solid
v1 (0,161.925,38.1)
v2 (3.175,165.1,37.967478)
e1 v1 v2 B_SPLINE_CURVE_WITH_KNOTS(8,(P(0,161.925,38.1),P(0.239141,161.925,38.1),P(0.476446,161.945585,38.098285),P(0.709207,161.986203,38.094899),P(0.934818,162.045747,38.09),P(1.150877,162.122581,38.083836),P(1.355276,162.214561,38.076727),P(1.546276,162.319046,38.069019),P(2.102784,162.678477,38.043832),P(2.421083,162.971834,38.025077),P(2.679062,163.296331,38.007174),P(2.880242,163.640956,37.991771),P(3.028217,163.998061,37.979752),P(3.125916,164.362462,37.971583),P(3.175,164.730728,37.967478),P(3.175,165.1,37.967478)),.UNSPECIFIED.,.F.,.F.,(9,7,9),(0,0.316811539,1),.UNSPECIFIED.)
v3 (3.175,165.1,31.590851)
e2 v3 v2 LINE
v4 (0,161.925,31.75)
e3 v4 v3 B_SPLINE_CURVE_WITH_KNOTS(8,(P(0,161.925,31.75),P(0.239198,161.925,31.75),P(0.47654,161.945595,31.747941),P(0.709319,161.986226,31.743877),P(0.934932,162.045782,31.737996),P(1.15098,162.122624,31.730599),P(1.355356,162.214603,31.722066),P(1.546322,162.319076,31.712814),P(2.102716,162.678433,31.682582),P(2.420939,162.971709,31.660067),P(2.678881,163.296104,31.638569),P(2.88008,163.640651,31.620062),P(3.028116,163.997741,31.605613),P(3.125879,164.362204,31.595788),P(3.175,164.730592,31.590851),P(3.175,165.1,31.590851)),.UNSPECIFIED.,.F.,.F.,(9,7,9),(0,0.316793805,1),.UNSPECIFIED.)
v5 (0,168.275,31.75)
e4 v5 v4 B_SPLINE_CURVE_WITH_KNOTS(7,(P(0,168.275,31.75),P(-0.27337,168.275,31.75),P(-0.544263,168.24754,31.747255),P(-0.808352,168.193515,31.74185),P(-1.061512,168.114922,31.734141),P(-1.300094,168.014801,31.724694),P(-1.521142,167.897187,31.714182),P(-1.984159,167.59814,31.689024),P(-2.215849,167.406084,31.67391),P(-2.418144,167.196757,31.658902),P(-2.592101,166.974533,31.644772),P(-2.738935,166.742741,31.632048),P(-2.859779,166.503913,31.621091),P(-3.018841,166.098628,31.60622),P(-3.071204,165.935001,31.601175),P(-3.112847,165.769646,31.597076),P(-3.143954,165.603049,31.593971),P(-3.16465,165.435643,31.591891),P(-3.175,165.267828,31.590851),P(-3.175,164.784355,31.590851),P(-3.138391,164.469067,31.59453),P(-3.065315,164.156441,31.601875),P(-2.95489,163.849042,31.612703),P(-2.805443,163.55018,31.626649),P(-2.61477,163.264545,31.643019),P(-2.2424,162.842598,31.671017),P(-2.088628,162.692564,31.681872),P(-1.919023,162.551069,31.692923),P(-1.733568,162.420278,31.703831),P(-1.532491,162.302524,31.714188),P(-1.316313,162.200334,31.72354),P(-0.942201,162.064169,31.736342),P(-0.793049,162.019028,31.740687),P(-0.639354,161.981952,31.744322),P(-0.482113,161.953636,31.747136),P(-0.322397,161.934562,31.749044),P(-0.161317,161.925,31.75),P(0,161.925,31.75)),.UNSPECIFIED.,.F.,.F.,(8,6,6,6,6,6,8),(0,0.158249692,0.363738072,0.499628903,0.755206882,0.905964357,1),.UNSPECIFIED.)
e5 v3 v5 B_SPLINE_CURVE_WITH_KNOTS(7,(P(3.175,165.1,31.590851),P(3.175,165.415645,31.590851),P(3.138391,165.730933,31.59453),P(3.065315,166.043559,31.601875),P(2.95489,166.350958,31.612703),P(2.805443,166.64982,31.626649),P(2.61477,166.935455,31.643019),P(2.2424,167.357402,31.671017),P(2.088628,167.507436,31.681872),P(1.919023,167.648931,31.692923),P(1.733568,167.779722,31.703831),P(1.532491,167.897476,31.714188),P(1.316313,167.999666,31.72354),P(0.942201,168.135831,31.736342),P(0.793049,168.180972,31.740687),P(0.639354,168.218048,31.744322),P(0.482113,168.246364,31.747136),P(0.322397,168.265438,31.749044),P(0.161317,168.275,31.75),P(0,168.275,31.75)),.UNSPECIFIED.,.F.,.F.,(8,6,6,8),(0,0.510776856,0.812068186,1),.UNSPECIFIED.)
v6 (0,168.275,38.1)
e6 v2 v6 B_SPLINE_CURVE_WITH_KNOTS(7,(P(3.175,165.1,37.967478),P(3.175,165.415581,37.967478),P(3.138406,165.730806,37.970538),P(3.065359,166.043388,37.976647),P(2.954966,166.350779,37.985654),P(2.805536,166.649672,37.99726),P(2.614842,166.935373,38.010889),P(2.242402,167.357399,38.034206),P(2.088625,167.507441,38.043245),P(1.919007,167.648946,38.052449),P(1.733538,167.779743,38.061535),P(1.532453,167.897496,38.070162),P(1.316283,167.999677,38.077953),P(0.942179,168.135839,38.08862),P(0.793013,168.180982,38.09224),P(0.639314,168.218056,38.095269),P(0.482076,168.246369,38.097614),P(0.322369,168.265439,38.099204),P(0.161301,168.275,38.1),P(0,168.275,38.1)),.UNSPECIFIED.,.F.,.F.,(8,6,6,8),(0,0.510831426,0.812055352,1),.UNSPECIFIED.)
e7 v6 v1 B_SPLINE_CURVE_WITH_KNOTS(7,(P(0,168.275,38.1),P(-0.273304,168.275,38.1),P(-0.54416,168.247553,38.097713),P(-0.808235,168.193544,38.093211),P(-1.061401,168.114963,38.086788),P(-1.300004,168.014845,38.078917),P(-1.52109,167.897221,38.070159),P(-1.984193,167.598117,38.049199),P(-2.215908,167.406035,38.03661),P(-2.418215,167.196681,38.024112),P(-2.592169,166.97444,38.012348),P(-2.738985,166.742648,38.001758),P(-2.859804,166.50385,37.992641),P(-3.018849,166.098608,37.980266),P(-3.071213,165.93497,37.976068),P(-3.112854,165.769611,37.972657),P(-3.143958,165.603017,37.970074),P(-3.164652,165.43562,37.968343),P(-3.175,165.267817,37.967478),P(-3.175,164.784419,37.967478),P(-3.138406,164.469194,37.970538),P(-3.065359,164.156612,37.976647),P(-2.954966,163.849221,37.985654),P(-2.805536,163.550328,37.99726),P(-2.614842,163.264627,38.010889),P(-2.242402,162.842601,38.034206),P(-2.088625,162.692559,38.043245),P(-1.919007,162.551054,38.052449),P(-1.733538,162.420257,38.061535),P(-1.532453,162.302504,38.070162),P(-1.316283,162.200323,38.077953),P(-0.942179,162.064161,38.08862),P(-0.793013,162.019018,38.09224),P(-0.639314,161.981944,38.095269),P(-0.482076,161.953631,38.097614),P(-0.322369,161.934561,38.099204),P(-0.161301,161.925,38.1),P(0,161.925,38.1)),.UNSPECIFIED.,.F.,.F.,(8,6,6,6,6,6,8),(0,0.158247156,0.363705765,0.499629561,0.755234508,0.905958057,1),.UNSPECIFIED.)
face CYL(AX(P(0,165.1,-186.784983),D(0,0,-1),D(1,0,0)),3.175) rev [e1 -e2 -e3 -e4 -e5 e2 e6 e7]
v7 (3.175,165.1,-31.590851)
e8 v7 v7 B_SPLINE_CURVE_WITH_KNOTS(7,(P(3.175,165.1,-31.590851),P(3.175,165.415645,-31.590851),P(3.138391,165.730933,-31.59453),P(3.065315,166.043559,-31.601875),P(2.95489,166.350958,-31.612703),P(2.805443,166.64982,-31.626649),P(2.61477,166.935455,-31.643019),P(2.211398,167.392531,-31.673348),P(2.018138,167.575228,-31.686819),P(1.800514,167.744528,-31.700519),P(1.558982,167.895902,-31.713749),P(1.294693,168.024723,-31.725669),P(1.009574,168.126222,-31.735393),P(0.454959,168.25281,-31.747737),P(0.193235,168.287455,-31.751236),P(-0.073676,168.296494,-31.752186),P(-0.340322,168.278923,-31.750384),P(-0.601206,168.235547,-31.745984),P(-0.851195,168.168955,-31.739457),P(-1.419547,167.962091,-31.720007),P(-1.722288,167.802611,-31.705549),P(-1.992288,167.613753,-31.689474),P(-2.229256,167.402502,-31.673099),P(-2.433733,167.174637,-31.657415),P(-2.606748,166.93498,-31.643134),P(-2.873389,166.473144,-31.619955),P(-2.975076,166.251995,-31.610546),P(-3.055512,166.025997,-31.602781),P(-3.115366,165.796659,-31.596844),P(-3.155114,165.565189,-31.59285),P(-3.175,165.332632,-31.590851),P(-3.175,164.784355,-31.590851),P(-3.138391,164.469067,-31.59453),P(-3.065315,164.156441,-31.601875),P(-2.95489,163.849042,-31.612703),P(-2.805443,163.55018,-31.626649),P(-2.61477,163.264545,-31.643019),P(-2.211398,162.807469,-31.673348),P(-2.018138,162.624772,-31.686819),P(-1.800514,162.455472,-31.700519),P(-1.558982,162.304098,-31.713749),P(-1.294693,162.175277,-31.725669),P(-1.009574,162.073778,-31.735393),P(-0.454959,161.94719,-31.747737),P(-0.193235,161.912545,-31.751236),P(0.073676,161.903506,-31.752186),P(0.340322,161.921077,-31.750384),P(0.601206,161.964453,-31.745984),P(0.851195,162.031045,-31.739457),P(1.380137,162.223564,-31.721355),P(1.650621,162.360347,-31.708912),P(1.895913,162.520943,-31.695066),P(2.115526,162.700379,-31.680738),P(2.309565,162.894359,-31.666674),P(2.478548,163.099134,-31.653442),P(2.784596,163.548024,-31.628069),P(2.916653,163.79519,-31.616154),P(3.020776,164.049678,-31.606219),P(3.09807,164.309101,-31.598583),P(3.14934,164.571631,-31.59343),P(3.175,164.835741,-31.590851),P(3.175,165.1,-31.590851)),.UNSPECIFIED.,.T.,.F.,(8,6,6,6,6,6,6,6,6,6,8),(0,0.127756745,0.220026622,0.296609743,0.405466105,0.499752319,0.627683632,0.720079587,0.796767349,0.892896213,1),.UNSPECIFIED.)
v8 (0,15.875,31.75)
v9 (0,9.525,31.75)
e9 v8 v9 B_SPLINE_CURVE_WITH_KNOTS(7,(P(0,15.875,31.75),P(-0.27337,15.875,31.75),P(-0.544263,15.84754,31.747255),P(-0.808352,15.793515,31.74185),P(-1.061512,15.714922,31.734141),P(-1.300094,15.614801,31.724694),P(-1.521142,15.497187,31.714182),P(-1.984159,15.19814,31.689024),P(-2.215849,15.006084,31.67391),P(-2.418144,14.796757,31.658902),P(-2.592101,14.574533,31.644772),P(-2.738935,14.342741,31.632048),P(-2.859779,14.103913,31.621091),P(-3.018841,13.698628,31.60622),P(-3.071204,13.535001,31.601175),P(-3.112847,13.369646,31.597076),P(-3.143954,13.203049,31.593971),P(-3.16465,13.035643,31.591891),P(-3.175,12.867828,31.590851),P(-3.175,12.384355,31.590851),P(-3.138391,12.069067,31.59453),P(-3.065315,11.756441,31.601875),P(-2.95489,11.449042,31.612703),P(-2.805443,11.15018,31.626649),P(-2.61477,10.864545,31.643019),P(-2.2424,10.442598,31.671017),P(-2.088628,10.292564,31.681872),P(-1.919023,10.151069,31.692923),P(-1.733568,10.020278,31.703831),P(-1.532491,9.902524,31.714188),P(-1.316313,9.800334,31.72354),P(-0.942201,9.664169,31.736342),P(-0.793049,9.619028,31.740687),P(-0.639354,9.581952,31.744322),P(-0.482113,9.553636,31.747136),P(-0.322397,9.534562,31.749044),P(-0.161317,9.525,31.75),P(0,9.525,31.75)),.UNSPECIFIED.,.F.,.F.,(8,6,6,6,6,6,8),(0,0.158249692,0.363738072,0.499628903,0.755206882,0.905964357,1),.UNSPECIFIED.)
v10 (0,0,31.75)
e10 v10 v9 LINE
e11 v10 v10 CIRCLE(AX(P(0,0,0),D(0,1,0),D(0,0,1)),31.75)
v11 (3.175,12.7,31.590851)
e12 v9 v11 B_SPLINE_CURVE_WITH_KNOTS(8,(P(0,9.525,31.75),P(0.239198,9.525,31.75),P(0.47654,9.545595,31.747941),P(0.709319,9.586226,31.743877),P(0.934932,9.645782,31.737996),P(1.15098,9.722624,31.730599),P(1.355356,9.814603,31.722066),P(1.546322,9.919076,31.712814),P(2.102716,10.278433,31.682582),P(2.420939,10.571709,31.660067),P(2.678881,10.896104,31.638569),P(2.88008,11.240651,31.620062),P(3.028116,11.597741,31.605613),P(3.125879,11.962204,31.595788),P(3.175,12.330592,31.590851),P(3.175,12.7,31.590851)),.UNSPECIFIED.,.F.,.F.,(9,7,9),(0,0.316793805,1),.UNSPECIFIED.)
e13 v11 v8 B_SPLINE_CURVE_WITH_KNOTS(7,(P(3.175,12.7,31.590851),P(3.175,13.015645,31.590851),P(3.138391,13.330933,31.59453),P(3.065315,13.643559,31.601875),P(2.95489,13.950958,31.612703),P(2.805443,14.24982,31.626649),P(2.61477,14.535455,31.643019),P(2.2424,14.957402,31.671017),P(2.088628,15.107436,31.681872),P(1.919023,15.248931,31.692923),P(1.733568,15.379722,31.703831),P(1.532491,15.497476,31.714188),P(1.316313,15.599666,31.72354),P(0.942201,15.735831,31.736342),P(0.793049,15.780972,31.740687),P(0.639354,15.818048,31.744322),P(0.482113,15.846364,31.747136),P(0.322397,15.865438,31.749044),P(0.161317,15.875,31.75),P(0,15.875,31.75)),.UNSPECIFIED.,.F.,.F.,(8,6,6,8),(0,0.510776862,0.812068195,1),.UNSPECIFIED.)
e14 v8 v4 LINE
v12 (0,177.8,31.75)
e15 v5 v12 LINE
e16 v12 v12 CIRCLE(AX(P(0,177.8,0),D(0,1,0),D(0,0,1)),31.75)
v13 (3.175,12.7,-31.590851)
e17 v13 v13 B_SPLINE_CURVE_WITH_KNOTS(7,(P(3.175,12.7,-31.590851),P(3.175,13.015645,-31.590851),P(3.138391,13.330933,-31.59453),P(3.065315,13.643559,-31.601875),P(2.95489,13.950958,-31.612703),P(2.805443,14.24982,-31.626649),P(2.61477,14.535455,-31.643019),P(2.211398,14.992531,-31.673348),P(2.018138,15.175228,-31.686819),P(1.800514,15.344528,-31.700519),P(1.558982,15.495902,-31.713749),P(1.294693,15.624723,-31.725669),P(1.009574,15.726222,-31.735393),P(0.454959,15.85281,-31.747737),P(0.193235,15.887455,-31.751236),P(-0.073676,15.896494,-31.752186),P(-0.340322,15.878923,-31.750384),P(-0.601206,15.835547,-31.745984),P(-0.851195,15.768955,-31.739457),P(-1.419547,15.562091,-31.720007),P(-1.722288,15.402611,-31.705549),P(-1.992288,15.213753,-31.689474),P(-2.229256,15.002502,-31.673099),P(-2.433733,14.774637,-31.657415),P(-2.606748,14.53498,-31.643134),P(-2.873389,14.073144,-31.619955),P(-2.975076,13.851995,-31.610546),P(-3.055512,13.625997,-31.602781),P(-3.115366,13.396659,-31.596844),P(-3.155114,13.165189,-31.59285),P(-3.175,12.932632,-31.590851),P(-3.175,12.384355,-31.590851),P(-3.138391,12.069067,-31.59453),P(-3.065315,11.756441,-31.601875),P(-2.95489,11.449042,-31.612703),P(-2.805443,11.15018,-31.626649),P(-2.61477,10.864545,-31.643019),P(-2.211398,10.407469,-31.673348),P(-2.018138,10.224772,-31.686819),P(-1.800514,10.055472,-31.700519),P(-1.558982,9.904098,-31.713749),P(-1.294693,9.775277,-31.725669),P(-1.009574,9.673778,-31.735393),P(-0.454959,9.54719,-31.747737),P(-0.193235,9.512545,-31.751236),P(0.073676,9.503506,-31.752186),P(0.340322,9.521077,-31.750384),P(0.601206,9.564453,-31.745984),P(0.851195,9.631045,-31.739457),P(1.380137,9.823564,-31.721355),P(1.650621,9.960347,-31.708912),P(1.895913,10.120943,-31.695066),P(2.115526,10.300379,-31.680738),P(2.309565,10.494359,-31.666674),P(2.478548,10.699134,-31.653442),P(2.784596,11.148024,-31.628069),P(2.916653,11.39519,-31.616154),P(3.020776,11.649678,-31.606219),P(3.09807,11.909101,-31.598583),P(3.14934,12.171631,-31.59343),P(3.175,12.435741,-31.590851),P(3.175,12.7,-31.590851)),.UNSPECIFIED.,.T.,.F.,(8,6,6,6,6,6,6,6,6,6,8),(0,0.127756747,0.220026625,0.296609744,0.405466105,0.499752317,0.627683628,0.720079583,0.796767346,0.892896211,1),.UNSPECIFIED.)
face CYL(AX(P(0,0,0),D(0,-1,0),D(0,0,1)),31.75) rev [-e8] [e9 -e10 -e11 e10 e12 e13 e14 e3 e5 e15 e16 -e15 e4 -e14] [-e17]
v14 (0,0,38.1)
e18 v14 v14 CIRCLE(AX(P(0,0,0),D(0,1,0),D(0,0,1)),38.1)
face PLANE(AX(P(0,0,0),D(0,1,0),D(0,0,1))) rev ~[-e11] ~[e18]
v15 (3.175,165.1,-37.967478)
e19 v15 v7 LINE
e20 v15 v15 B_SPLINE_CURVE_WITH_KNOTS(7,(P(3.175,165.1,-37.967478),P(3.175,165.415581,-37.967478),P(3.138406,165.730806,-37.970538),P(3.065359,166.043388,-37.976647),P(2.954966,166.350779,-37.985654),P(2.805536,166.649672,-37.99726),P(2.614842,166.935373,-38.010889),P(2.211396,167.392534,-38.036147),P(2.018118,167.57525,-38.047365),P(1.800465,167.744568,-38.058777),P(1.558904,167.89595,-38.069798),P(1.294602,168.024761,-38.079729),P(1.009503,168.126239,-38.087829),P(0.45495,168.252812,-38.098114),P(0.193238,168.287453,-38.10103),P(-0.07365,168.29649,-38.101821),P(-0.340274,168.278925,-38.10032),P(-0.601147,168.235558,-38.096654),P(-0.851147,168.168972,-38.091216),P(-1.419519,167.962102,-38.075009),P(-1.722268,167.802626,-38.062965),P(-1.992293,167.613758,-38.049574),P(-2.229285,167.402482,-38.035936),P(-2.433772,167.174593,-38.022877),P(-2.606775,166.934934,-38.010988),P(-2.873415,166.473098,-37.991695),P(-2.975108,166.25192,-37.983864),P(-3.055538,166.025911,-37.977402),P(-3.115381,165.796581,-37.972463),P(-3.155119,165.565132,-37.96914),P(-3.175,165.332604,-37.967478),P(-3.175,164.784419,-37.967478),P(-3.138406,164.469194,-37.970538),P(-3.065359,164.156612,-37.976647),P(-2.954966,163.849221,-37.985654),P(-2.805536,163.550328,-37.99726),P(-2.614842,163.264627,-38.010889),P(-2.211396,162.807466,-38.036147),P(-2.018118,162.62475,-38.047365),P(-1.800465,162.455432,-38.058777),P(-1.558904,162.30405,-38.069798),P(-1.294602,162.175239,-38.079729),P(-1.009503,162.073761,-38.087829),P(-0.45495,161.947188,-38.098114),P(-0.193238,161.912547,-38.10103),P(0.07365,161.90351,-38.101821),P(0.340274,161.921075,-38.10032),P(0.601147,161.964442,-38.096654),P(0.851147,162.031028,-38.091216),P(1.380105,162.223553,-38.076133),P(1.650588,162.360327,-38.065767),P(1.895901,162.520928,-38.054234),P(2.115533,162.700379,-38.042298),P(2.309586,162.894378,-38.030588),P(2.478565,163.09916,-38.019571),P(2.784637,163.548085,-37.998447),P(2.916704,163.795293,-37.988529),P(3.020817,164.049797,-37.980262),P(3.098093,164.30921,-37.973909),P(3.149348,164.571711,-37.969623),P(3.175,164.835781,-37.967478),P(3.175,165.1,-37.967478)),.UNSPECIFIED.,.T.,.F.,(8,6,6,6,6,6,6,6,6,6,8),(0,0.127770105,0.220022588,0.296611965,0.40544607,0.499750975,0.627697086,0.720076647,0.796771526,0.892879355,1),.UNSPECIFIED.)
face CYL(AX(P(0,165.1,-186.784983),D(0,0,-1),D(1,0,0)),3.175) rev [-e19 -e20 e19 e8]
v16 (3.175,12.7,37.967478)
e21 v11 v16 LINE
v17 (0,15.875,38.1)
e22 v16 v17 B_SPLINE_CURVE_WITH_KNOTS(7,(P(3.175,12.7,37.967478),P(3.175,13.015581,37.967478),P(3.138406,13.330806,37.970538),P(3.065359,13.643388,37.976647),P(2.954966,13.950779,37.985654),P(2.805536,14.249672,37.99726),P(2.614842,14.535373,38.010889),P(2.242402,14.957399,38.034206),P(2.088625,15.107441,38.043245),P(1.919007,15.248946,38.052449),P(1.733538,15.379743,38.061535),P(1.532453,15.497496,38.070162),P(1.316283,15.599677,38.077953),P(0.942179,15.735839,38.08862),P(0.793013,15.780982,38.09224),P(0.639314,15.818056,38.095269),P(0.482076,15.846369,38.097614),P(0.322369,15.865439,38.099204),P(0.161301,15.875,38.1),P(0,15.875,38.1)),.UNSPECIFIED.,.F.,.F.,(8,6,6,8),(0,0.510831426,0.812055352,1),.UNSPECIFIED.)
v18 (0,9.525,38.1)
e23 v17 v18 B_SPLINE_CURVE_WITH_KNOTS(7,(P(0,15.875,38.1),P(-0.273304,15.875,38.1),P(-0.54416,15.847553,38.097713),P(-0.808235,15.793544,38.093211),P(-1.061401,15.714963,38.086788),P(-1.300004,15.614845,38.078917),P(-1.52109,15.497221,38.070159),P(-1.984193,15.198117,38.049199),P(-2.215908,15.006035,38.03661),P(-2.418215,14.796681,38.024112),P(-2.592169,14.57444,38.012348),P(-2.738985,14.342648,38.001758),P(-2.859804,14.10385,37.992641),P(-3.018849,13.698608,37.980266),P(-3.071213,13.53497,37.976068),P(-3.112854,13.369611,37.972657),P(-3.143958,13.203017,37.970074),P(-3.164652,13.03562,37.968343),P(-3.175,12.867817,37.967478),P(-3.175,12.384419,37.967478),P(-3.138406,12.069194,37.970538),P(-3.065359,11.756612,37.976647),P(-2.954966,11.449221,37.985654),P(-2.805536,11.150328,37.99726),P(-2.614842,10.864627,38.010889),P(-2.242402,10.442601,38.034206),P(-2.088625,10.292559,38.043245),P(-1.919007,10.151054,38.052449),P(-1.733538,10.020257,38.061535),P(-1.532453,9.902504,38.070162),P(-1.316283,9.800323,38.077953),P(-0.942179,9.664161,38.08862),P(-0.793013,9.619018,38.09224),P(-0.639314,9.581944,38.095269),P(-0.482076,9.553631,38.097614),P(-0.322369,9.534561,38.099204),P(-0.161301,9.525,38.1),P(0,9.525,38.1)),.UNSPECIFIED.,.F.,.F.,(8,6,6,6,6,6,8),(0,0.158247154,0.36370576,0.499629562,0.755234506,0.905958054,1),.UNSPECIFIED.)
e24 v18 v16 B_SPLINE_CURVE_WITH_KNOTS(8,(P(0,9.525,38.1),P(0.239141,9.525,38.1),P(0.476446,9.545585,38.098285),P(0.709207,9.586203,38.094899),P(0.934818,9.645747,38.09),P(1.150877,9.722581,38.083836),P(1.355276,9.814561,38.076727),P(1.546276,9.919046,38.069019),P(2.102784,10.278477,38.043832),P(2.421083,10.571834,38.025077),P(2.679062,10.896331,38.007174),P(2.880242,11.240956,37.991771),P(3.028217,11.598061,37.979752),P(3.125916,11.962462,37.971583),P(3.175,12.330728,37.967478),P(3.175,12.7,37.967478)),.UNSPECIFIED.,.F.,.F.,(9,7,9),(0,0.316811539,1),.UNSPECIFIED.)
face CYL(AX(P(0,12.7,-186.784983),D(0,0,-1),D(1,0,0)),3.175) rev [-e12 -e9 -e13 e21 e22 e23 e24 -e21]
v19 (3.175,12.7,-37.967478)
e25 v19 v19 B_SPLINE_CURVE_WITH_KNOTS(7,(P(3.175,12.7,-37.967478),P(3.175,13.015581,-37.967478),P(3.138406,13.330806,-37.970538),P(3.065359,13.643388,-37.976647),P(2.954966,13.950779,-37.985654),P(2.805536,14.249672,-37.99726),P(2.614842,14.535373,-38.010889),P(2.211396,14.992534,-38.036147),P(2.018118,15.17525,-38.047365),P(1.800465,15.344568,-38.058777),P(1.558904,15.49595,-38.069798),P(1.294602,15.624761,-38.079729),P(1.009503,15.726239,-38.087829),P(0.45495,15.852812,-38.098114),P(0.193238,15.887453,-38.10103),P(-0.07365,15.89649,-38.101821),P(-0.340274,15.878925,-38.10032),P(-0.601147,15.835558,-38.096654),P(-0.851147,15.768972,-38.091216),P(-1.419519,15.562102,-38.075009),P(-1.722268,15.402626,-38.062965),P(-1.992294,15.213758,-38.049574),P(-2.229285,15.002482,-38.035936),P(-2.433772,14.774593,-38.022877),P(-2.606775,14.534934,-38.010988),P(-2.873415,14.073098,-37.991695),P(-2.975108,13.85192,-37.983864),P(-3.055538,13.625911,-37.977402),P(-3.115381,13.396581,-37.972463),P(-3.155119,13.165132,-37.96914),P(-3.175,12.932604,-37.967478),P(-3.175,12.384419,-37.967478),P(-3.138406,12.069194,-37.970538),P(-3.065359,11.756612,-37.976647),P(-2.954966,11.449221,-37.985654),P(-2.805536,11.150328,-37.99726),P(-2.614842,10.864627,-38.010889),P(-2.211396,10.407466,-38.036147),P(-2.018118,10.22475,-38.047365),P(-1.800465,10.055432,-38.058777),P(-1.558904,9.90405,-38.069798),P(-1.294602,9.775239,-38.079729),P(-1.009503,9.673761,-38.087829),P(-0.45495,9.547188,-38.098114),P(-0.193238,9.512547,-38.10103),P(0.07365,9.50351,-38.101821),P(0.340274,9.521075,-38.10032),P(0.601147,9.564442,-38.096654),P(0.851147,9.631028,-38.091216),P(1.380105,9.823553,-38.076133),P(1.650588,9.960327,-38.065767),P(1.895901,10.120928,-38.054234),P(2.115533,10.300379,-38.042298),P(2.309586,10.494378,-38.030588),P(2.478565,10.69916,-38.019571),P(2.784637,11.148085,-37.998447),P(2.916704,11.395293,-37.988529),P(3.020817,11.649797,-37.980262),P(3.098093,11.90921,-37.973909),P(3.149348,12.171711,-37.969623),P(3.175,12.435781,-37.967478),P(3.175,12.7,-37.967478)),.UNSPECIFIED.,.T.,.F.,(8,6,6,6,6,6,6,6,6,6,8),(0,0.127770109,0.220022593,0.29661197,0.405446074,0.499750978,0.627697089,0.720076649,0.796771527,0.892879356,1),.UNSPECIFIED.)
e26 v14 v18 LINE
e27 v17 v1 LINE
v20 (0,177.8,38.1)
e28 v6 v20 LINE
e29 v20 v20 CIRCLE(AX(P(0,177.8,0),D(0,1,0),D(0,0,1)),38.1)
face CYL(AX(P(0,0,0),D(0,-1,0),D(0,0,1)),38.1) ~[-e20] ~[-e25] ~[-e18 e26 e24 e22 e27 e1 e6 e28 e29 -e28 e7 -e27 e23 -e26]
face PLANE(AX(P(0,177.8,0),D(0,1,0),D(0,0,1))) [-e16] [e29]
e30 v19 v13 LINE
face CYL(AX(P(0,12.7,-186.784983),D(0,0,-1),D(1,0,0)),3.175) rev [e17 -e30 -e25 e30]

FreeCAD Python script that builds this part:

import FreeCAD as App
import Part
import Sketcher
Q = App.Units.Quantity

doc = App.newDocument("Part")
params = doc.addObject("Spreadsheet::Sheet", "Params")
for row, (alias, value) in enumerate([
    ("sketch1_diameter", "3 in"),
    ("sketch1_diameter2", "2.5 in"),
    ("pad1_length", "7 in"),
    ("sketch2_diameter", "0.25 in"),
], start=1):
    params.set(f"A{row}", alias)
    params.set(f"B{row}", "=" + value)
    params.setAlias(f"B{row}", alias)

body = doc.addObject("PartDesign::Body", "Body")

sketch1 = body.newObject("Sketcher::SketchObject", "Sketch")
sketch1.AttachmentSupport = (doc.getObject("XZ_Plane"), [""])
sketch1.MapMode = "FlatFace"
sketch1.addGeometry([
    Part.Circle(App.Vector(0, 0, 0), App.Vector(0, 0, 1), 38),
    Part.Circle(App.Vector(0, 0, 0), App.Vector(0, 0, 1), 32),
], False)
sketch1.addConstraint([
    Sketcher.Constraint("Coincident", 0, 3, -1, 1),
    Sketcher.Constraint("Coincident", 1, 3, -1, 1),
    Sketcher.Constraint("Diameter", 0, Q("3 in")),
    Sketcher.Constraint("Diameter", 1, Q("2.5 in")),
])
sketch1.setExpression("Constraints[2]", "Params.sketch1_diameter")
sketch1.setExpression("Constraints[3]", "Params.sketch1_diameter2")
pad1 = body.newObject("PartDesign::Pad", "Pad")
pad1.Profile = sketch1
pad1.setExpression("Length", "Params.pad1_length")
pad1.Reversed = True

sketch2 = body.newObject("Sketcher::SketchObject", "Sketch001")
sketch2.AttachmentSupport = (doc.getObject("XY_Plane"), [""])
sketch2.MapMode = "FlatFace"
sketch2.addGeometry([
    Part.Circle(App.Vector(0, 165.1, 0), App.Vector(0, 0, 1), 3.2),
    Part.Circle(App.Vector(0, 12.7, 0), App.Vector(0, 0, 1), 3.2),
], False)
sketch2.addConstraint([
    Sketcher.Constraint("Equal", 0, 1),
    Sketcher.Constraint("PointOnObject", 0, 3, -2),
    Sketcher.Constraint("PointOnObject", 1, 3, -2),
    Sketcher.Constraint("Diameter", 0, Q("0.25 in")),
    Sketcher.Constraint("DistanceY", 1, 3, 0, 3, Q("6 in")),
    Sketcher.Constraint("DistanceY", -1, 1, 0, 3, Q("6.5 in")),
])
sketch2.setExpression("Constraints[3]", "Params.sketch2_diameter")
pocket1 = body.newObject("PartDesign::Pocket", "Pocket")
pocket1.Profile = sketch2
pocket1.Type = "ThroughAll"
pocket1.Midplane = True

doc.recompute()
